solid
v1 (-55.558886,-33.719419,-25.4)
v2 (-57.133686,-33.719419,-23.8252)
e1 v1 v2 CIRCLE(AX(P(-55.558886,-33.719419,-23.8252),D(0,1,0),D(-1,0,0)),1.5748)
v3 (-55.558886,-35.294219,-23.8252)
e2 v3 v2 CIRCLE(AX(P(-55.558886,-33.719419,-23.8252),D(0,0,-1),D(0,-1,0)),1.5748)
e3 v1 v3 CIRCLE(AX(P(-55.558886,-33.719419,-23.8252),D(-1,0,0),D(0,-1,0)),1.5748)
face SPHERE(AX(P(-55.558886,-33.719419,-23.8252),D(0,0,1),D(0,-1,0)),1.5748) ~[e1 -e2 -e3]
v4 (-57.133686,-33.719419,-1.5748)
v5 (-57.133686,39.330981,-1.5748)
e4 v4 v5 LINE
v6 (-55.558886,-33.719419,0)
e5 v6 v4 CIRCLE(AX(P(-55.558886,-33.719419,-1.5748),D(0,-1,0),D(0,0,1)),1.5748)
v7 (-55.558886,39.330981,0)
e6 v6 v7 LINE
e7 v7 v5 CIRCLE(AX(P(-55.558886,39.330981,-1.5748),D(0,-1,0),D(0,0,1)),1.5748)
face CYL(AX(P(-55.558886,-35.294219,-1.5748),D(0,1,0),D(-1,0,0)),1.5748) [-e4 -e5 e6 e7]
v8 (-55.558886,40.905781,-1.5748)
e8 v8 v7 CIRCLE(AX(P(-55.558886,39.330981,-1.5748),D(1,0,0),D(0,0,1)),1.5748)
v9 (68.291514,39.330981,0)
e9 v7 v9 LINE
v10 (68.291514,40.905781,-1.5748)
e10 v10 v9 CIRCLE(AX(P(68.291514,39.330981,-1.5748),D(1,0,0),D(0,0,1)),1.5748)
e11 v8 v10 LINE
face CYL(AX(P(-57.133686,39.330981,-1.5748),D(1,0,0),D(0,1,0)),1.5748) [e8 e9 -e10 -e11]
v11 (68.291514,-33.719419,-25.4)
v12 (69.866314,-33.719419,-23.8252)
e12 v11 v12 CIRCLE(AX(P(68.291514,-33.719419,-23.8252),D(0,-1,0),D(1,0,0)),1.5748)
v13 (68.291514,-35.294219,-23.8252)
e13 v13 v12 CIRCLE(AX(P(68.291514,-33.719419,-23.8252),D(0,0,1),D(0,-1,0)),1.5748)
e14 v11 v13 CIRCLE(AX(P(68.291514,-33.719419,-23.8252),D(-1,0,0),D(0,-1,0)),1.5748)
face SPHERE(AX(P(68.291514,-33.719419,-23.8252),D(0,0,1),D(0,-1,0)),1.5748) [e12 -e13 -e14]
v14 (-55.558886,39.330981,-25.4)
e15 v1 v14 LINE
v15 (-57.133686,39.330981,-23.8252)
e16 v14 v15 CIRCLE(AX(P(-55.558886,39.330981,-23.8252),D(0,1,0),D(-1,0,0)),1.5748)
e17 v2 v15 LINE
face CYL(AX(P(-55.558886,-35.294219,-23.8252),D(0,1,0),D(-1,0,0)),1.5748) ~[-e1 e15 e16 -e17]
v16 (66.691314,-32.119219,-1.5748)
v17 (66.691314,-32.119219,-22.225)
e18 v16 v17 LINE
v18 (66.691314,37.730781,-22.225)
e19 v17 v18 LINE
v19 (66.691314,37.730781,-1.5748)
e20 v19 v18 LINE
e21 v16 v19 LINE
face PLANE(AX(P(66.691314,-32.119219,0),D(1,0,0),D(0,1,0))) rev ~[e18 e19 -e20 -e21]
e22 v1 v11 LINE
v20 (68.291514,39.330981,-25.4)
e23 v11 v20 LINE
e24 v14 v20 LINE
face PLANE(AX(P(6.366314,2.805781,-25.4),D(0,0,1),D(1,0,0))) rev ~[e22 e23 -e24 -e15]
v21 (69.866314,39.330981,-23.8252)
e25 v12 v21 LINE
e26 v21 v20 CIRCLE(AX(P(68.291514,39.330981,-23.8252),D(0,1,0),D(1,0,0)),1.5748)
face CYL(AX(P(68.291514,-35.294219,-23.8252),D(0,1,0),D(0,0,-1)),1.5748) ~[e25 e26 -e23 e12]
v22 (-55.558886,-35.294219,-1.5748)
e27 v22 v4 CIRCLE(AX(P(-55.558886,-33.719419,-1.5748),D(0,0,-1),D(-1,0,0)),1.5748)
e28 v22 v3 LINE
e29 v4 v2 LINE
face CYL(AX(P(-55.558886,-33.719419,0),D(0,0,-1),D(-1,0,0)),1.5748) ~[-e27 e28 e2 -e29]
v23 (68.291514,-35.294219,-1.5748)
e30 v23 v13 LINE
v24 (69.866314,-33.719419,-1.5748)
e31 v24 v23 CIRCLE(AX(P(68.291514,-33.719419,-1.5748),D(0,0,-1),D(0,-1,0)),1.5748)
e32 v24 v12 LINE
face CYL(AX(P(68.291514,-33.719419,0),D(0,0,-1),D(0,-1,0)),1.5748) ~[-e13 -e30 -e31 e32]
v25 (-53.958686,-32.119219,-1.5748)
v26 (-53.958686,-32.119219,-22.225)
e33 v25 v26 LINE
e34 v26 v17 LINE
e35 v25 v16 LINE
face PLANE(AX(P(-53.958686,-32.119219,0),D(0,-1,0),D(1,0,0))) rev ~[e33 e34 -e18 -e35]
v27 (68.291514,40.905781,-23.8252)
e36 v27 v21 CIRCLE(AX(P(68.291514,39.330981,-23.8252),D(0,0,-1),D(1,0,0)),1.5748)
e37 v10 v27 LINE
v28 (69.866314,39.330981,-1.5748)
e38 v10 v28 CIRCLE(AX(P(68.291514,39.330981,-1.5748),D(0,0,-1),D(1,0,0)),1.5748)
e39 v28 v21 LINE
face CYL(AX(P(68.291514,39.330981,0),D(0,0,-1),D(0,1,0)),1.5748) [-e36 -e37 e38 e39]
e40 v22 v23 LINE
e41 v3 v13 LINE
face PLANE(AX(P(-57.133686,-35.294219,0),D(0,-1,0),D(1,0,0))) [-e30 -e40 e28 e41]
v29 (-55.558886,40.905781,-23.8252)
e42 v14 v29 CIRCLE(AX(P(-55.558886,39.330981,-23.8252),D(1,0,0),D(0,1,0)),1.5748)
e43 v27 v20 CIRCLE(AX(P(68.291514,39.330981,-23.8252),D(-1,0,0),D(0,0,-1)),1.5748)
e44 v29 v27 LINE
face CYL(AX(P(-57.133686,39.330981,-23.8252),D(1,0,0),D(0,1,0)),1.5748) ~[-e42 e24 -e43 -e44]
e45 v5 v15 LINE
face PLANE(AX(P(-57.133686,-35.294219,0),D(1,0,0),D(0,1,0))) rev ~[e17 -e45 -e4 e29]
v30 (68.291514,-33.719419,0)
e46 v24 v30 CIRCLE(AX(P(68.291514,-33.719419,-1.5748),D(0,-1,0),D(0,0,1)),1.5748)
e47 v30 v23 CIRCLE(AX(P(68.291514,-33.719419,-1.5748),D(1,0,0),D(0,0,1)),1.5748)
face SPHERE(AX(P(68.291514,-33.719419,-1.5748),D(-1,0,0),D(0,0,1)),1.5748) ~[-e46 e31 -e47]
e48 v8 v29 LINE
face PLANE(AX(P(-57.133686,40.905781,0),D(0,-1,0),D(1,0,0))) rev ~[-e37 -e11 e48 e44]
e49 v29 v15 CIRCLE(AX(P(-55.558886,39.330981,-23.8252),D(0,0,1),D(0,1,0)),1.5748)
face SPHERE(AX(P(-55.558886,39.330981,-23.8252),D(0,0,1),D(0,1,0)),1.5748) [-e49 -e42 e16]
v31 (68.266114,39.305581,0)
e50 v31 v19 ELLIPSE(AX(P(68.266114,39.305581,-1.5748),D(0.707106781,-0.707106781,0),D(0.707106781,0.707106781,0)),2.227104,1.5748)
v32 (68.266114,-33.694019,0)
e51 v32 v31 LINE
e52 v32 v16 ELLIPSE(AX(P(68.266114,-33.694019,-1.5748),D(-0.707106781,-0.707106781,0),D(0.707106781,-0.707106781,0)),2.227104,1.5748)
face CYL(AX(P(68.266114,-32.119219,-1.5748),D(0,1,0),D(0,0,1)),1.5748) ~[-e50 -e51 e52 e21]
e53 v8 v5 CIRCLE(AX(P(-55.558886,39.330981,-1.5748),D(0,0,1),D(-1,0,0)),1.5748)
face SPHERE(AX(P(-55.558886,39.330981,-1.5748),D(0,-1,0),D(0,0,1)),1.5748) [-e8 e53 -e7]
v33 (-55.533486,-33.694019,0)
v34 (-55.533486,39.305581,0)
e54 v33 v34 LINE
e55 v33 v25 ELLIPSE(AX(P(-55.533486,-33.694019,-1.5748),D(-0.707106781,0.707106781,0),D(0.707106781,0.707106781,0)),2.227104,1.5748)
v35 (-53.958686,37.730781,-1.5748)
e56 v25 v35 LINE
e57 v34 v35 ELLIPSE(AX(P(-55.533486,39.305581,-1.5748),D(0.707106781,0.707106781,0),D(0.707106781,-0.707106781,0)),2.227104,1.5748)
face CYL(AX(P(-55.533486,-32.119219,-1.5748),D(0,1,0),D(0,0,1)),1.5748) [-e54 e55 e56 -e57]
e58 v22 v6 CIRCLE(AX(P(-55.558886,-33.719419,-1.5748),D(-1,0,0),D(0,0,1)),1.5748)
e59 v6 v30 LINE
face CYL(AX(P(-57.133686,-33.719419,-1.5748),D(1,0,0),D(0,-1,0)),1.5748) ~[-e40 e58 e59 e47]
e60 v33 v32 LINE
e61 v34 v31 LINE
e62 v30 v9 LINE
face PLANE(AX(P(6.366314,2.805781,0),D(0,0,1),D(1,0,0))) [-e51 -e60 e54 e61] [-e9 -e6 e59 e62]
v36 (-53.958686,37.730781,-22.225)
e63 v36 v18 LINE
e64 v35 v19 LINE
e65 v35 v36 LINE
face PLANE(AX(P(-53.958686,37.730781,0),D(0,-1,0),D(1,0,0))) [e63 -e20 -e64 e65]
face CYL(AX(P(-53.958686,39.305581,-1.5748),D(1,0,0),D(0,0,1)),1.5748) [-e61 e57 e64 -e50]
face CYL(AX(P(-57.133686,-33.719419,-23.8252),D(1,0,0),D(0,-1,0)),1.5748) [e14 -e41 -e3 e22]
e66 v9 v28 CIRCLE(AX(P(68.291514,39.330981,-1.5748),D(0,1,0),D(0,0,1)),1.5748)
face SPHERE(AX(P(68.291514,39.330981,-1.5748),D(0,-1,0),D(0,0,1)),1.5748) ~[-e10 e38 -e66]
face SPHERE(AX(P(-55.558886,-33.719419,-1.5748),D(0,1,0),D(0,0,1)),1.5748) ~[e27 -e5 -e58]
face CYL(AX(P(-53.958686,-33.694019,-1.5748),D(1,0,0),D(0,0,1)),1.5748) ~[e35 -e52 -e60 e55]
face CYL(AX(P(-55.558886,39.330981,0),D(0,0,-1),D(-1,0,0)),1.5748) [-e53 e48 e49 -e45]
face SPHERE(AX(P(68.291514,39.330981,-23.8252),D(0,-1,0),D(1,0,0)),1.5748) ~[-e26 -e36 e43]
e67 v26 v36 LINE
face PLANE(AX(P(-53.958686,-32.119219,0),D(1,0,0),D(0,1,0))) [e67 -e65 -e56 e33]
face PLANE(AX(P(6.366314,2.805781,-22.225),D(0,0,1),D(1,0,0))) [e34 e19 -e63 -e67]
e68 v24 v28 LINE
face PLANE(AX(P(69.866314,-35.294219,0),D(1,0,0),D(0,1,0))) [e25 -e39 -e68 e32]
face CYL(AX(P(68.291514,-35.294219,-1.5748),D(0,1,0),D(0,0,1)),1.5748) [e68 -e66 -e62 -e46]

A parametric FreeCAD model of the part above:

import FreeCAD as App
import Part
import Sketcher

V = App.Vector
Q = App.Units.Quantity


def edges_at(feature, points):
    """Names of the edges that pass closest to the given points."""
    edges = feature.Shape.Edges
    near = lambda p: min(range(len(edges)), key=lambda i: edges[i].distToShape(Part.Vertex(*p))[0])
    return sorted({f"Edge{near(p) + 1}" for p in points})

doc = App.newDocument("Part")
body = doc.addObject("PartDesign::Body", "Body")

# Sketch on XY plane
sketch1 = body.newObject("Sketcher::SketchObject", "Sketch")
sketch1.AttachmentSupport = (doc.getObject("XY_Plane"), [""])
sketch1.MapMode = "FlatFace"
sketch1.addGeometry(Part.LineSegment(V(-57.133686, 40.905781, 0), V(-57.133686, -35.294219, 0)), False)
sketch1.addGeometry(Part.LineSegment(V(-57.133686, -35.294219, 0), V(69.866314, -35.294219, 0)), False)
sketch1.addGeometry(Part.LineSegment(V(69.866314, -35.294219, 0), V(69.866314, 40.905781, 0)), False)
sketch1.addGeometry(Part.LineSegment(V(69.866314, 40.905781, 0), V(-57.133686, 40.905781, 0)), False)
sketch1.addConstraint(Sketcher.Constraint("Coincident", 0, 2, 1, 1))
sketch1.addConstraint(Sketcher.Constraint("Coincident", 1, 2, 2, 1))
sketch1.addConstraint(Sketcher.Constraint("Coincident", 2, 2, 3, 1))
sketch1.addConstraint(Sketcher.Constraint("Coincident", 3, 2, 0, 1))
sketch1.addConstraint(Sketcher.Constraint("Vertical", 0))
sketch1.addConstraint(Sketcher.Constraint("Horizontal", 1))
sketch1.addConstraint(Sketcher.Constraint("Vertical", 2))
sketch1.addConstraint(Sketcher.Constraint("Horizontal", 3))
sketch1.addConstraint(Sketcher.Constraint("DistanceX", 1, 1, 1, 2, Q("5 in")))
sketch1.addConstraint(Sketcher.Constraint("DistanceY", 0, 2, 0, 1, Q("3 in")))
sketch1.addConstraint(Sketcher.Constraint("DistanceY", 0, 2, -1, 1, Q("35.294219 mm")))
sketch1.addConstraint(Sketcher.Constraint("DistanceX", 0, 2, -1, 1, Q("57.133686 mm")))
pad1 = body.newObject("PartDesign::Pad", "Pad")
pad1.Profile = sketch1
pad1.Length = Q("1 in")
pad1.Reversed = True

# Sketch on XY plane
sketch2 = body.newObject("Sketcher::SketchObject", "Sketch001")
sketch2.AttachmentSupport = (doc.getObject("XY_Plane"), [""])
sketch2.MapMode = "FlatFace"
sketch2.addGeometry(Part.LineSegment(V(-53.958686, 37.730781, 0), V(-53.958686, -32.119219, 0)), False)
sketch2.addGeometry(Part.LineSegment(V(-53.958686, -32.119219, 0), V(66.691314, -32.119219, 0)), False)
sketch2.addGeometry(Part.LineSegment(V(66.691314, -32.119219, 0), V(66.691314, 37.730781, 0)), False)
sketch2.addGeometry(Part.LineSegment(V(66.691314, 37.730781, 0), V(-53.958686, 37.730781, 0)), False)
sketch2.addConstraint(Sketcher.Constraint("Coincident", 0, 2, 1, 1))
sketch2.addConstraint(Sketcher.Constraint("Coincident", 1, 2, 2, 1))
sketch2.addConstraint(Sketcher.Constraint("Coincident", 2, 2, 3, 1))
sketch2.addConstraint(Sketcher.Constraint("Coincident", 3, 2, 0, 1))
sketch2.addConstraint(Sketcher.Constraint("Vertical", 0))
sketch2.addConstraint(Sketcher.Constraint("Horizontal", 1))
sketch2.addConstraint(Sketcher.Constraint("Vertical", 2))
sketch2.addConstraint(Sketcher.Constraint("Horizontal", 3))
sketch2.addConstraint(Sketcher.Constraint("DistanceX", 1, 1, 1, 2, Q("4.75 in")))
sketch2.addConstraint(Sketcher.Constraint("DistanceY", 0, 2, 0, 1, Q("2.75 in")))
sketch2.addConstraint(Sketcher.Constraint("DistanceY", 0, 2, -1, 1, Q("32.119219 mm")))
sketch2.addConstraint(Sketcher.Constraint("DistanceX", 0, 2, -1, 1, Q("53.958686 mm")))
pocket1 = body.newObject("PartDesign::Pocket", "Pocket")
pocket1.Profile = sketch2
pocket1.Length = Q("0.875 in")
doc.recompute()

fillet = body.newObject("PartDesign::Fillet", "Fillet")
fillet.Base = (pocket1, edges_at(pocket1, [
    (-57.134, 2.806, 0),
    (6.366, -35.294, 0),
    (69.866, 2.806, 0),
    (6.366, 40.906, 0),
    (6.366, 37.731, 0),
    (-53.959, 2.806, 0),
    (6.366, -32.119, 0),
    (66.691, 2.806, 0),
    (69.866, -35.294, -12.7),
    (-57.134, -35.294, -12.7),
    (6.366, -35.294, -25.4),
    (69.866, 2.806, -25.4),
    (69.866, 40.906, -12.7),
    (-57.134, 40.906, -12.7),
    (6.366, 40.906, -25.4),
    (-57.134, 2.806, -25.4),
]))
fillet.Radius = Q("0.062 in")

doc.recompute()
